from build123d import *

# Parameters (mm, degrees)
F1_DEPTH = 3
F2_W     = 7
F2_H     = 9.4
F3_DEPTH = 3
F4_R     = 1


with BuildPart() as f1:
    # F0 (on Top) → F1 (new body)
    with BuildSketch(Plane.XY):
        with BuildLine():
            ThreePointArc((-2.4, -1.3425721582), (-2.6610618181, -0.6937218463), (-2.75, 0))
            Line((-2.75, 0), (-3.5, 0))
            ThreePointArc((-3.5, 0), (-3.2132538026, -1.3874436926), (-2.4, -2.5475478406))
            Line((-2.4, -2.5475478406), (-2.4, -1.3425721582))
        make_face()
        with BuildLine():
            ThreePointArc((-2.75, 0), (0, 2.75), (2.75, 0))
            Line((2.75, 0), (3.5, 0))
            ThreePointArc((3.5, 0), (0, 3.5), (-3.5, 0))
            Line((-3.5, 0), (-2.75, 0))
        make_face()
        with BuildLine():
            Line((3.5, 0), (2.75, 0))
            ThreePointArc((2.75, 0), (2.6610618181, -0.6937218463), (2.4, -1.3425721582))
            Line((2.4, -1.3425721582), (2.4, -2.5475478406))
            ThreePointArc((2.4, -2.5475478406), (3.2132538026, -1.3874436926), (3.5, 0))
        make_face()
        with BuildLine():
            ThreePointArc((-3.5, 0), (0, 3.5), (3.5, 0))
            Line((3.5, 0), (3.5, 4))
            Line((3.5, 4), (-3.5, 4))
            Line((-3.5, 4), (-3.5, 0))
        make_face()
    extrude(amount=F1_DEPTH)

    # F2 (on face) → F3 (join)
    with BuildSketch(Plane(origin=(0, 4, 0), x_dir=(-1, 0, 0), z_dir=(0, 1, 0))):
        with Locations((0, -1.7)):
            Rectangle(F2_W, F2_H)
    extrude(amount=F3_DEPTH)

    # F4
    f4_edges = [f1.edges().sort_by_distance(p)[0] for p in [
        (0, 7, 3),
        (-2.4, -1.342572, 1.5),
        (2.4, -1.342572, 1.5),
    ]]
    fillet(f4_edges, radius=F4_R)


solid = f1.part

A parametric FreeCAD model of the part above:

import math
import FreeCAD as App
import Part
import Sketcher


def edges_at(feature, points):
    """Names of the edges that pass closest to the given points."""
    edges = feature.Shape.Edges
    near = lambda p: min(range(len(edges)), key=lambda i: edges[i].distToShape(Part.Vertex(*p))[0])
    return sorted({f"Edge{near(p) + 1}" for p in points})

doc = App.newDocument("Part")
body = doc.addObject("PartDesign::Body", "Body")

sketch1 = body.newObject("Sketcher::SketchObject", "Sketch")
sketch1.AttachmentSupport = (doc.getObject("XY_Plane"), [""])
sketch1.MapMode = "FlatFace"
sketch1.addGeometry([
    Part.ArcOfCircle(Part.Circle(App.Vector(0, 0, 0), App.Vector(0, 0, 1), 2.75), math.radians(180), math.radians(209.22287)),
    Part.ArcOfCircle(Part.Circle(App.Vector(0, 0, 0), App.Vector(0, 0, 1), 2.75), math.radians(0), math.radians(180)),
    Part.ArcOfCircle(Part.Circle(App.Vector(0, 0, 0), App.Vector(0, 0, 1), 2.75), math.radians(-29.22287), math.radians(0)),
    Part.LineSegment(App.Vector(2.4, -1.342572, 0), App.Vector(2.4, -2.547548, 0)),
    Part.ArcOfCircle(Part.Circle(App.Vector(0, 0, 0), App.Vector(0, 0, 1), 3.5), math.radians(-46.708192), math.radians(0)),
    Part.LineSegment(App.Vector(3.5, 0, 0), App.Vector(3.5, 4, 0)),
    Part.LineSegment(App.Vector(3.5, 4, 0), App.Vector(-3.5, 4, 0)),
    Part.LineSegment(App.Vector(-3.5, 4, 0), App.Vector(-3.5, 0, 0)),
    Part.ArcOfCircle(Part.Circle(App.Vector(0, 0, 0), App.Vector(0, 0, 1), 3.5), math.radians(180), math.radians(226.708192)),
    Part.LineSegment(App.Vector(-2.4, -2.547548, 0), App.Vector(-2.4, -1.342572, 0)),
], False)
sketch1.addConstraint([
    Sketcher.Constraint("Tangent", 0, 1, 1, 2),
    Sketcher.Constraint("Tangent", 1, 1, 2, 2),
    Sketcher.Constraint("Coincident", 2, 1, 3, 1),
    Sketcher.Constraint("Coincident", 3, 2, 4, 1),
    Sketcher.Constraint("Tangent", 4, 2, 5, 1),
    Sketcher.Constraint("Coincident", 5, 2, 6, 1),
    Sketcher.Constraint("Coincident", 6, 2, 7, 1),
    Sketcher.Constraint("Tangent", 7, 2, 8, 1),
    Sketcher.Constraint("Coincident", 8, 2, 9, 1),
    Sketcher.Constraint("Coincident", 9, 2, 0, 2),
    Sketcher.Constraint("Vertical", 3),
    Sketcher.Constraint("Vertical", 5),
    Sketcher.Constraint("Horizontal", 6),
    Sketcher.Constraint("Vertical", 7),
    Sketcher.Constraint("Vertical", 9),
    Sketcher.Constraint("Coincident", 0, 3, -1, 1),
    Sketcher.Constraint("Coincident", 4, 3, -1, 1),
    Sketcher.Constraint("Coincident", 8, 3, -1, 1),
    Sketcher.Constraint("Equal", 0, 1),
    Sketcher.Constraint("Equal", 1, 2),
    Sketcher.Constraint("Equal", 4, 8),
    Sketcher.Constraint("PointOnObject", 0, 1, -1),
    Sketcher.Constraint("PointOnObject", 1, 1, -1),
    Sketcher.Constraint("Horizontal", 3, 2, 8, 2),
    Sketcher.Constraint("Radius", 4, 3.5),
    Sketcher.Constraint("DistanceY", 5, 1, 5, 2, 4.0),
    Sketcher.Constraint("Radius", 0, 2.75),
    Sketcher.Constraint("DistanceX", -1, 1, 2, 1, 2.4),
])
pad1 = body.newObject("PartDesign::Pad", "Pad")
pad1.Profile = sketch1
pad1.Length = 3

sketch2 = body.newObject("Sketcher::SketchObject", "Sketch001")
sketch2.AttachmentSupport = (doc.getObject("XZ_Plane"), [""])
sketch2.MapMode = "FlatFace"
sketch2.AttachmentOffset = App.Placement(App.Vector(0, 0, -4), App.Rotation())
sketch2.addGeometry([
    Part.LineSegment(App.Vector(3.5, 3, 0), App.Vector(3.5, -6.4, 0)),
    Part.LineSegment(App.Vector(3.5, -6.4, 0), App.Vector(-3.5, -6.4, 0)),
    Part.LineSegment(App.Vector(-3.5, -6.4, 0), App.Vector(-3.5, 3, 0)),
    Part.LineSegment(App.Vector(-3.5, 3, 0), App.Vector(3.5, 3, 0)),
], False)
sketch2.addConstraint([
    Sketcher.Constraint("Coincident", 0, 2, 1, 1),
    Sketcher.Constraint("Coincident", 1, 2, 2, 1),
    Sketcher.Constraint("Coincident", 2, 2, 3, 1),
    Sketcher.Constraint("Coincident", 3, 2, 0, 1),
    Sketcher.Constraint("Vertical", 0),
    Sketcher.Constraint("Horizontal", 1),
    Sketcher.Constraint("Vertical", 2),
    Sketcher.Constraint("Horizontal", 3),
    Sketcher.Constraint("DistanceX", 1, 2, 1, 1, 7.0),
    Sketcher.Constraint("DistanceY", 0, 2, 0, 1, 9.4),
    Sketcher.Constraint("DistanceY", -1, 1, 2, 2, 3.0),
    Sketcher.Constraint("DistanceX", -1, 1, 0, 2, 3.5),
])
pad2 = body.newObject("PartDesign::Pad", "Pad001")
pad2.Profile = sketch2
pad2.Length = 3
pad2.Reversed = True
doc.recompute()

fillet = body.newObject("PartDesign::Fillet", "Fillet")
fillet.Base = (pad2, edges_at(pad2, [(0, 7, 3), (-2.4, -1.343, 1.5), (2.4, -1.343, 1.5)]))
fillet.Radius = 1

doc.recompute()
